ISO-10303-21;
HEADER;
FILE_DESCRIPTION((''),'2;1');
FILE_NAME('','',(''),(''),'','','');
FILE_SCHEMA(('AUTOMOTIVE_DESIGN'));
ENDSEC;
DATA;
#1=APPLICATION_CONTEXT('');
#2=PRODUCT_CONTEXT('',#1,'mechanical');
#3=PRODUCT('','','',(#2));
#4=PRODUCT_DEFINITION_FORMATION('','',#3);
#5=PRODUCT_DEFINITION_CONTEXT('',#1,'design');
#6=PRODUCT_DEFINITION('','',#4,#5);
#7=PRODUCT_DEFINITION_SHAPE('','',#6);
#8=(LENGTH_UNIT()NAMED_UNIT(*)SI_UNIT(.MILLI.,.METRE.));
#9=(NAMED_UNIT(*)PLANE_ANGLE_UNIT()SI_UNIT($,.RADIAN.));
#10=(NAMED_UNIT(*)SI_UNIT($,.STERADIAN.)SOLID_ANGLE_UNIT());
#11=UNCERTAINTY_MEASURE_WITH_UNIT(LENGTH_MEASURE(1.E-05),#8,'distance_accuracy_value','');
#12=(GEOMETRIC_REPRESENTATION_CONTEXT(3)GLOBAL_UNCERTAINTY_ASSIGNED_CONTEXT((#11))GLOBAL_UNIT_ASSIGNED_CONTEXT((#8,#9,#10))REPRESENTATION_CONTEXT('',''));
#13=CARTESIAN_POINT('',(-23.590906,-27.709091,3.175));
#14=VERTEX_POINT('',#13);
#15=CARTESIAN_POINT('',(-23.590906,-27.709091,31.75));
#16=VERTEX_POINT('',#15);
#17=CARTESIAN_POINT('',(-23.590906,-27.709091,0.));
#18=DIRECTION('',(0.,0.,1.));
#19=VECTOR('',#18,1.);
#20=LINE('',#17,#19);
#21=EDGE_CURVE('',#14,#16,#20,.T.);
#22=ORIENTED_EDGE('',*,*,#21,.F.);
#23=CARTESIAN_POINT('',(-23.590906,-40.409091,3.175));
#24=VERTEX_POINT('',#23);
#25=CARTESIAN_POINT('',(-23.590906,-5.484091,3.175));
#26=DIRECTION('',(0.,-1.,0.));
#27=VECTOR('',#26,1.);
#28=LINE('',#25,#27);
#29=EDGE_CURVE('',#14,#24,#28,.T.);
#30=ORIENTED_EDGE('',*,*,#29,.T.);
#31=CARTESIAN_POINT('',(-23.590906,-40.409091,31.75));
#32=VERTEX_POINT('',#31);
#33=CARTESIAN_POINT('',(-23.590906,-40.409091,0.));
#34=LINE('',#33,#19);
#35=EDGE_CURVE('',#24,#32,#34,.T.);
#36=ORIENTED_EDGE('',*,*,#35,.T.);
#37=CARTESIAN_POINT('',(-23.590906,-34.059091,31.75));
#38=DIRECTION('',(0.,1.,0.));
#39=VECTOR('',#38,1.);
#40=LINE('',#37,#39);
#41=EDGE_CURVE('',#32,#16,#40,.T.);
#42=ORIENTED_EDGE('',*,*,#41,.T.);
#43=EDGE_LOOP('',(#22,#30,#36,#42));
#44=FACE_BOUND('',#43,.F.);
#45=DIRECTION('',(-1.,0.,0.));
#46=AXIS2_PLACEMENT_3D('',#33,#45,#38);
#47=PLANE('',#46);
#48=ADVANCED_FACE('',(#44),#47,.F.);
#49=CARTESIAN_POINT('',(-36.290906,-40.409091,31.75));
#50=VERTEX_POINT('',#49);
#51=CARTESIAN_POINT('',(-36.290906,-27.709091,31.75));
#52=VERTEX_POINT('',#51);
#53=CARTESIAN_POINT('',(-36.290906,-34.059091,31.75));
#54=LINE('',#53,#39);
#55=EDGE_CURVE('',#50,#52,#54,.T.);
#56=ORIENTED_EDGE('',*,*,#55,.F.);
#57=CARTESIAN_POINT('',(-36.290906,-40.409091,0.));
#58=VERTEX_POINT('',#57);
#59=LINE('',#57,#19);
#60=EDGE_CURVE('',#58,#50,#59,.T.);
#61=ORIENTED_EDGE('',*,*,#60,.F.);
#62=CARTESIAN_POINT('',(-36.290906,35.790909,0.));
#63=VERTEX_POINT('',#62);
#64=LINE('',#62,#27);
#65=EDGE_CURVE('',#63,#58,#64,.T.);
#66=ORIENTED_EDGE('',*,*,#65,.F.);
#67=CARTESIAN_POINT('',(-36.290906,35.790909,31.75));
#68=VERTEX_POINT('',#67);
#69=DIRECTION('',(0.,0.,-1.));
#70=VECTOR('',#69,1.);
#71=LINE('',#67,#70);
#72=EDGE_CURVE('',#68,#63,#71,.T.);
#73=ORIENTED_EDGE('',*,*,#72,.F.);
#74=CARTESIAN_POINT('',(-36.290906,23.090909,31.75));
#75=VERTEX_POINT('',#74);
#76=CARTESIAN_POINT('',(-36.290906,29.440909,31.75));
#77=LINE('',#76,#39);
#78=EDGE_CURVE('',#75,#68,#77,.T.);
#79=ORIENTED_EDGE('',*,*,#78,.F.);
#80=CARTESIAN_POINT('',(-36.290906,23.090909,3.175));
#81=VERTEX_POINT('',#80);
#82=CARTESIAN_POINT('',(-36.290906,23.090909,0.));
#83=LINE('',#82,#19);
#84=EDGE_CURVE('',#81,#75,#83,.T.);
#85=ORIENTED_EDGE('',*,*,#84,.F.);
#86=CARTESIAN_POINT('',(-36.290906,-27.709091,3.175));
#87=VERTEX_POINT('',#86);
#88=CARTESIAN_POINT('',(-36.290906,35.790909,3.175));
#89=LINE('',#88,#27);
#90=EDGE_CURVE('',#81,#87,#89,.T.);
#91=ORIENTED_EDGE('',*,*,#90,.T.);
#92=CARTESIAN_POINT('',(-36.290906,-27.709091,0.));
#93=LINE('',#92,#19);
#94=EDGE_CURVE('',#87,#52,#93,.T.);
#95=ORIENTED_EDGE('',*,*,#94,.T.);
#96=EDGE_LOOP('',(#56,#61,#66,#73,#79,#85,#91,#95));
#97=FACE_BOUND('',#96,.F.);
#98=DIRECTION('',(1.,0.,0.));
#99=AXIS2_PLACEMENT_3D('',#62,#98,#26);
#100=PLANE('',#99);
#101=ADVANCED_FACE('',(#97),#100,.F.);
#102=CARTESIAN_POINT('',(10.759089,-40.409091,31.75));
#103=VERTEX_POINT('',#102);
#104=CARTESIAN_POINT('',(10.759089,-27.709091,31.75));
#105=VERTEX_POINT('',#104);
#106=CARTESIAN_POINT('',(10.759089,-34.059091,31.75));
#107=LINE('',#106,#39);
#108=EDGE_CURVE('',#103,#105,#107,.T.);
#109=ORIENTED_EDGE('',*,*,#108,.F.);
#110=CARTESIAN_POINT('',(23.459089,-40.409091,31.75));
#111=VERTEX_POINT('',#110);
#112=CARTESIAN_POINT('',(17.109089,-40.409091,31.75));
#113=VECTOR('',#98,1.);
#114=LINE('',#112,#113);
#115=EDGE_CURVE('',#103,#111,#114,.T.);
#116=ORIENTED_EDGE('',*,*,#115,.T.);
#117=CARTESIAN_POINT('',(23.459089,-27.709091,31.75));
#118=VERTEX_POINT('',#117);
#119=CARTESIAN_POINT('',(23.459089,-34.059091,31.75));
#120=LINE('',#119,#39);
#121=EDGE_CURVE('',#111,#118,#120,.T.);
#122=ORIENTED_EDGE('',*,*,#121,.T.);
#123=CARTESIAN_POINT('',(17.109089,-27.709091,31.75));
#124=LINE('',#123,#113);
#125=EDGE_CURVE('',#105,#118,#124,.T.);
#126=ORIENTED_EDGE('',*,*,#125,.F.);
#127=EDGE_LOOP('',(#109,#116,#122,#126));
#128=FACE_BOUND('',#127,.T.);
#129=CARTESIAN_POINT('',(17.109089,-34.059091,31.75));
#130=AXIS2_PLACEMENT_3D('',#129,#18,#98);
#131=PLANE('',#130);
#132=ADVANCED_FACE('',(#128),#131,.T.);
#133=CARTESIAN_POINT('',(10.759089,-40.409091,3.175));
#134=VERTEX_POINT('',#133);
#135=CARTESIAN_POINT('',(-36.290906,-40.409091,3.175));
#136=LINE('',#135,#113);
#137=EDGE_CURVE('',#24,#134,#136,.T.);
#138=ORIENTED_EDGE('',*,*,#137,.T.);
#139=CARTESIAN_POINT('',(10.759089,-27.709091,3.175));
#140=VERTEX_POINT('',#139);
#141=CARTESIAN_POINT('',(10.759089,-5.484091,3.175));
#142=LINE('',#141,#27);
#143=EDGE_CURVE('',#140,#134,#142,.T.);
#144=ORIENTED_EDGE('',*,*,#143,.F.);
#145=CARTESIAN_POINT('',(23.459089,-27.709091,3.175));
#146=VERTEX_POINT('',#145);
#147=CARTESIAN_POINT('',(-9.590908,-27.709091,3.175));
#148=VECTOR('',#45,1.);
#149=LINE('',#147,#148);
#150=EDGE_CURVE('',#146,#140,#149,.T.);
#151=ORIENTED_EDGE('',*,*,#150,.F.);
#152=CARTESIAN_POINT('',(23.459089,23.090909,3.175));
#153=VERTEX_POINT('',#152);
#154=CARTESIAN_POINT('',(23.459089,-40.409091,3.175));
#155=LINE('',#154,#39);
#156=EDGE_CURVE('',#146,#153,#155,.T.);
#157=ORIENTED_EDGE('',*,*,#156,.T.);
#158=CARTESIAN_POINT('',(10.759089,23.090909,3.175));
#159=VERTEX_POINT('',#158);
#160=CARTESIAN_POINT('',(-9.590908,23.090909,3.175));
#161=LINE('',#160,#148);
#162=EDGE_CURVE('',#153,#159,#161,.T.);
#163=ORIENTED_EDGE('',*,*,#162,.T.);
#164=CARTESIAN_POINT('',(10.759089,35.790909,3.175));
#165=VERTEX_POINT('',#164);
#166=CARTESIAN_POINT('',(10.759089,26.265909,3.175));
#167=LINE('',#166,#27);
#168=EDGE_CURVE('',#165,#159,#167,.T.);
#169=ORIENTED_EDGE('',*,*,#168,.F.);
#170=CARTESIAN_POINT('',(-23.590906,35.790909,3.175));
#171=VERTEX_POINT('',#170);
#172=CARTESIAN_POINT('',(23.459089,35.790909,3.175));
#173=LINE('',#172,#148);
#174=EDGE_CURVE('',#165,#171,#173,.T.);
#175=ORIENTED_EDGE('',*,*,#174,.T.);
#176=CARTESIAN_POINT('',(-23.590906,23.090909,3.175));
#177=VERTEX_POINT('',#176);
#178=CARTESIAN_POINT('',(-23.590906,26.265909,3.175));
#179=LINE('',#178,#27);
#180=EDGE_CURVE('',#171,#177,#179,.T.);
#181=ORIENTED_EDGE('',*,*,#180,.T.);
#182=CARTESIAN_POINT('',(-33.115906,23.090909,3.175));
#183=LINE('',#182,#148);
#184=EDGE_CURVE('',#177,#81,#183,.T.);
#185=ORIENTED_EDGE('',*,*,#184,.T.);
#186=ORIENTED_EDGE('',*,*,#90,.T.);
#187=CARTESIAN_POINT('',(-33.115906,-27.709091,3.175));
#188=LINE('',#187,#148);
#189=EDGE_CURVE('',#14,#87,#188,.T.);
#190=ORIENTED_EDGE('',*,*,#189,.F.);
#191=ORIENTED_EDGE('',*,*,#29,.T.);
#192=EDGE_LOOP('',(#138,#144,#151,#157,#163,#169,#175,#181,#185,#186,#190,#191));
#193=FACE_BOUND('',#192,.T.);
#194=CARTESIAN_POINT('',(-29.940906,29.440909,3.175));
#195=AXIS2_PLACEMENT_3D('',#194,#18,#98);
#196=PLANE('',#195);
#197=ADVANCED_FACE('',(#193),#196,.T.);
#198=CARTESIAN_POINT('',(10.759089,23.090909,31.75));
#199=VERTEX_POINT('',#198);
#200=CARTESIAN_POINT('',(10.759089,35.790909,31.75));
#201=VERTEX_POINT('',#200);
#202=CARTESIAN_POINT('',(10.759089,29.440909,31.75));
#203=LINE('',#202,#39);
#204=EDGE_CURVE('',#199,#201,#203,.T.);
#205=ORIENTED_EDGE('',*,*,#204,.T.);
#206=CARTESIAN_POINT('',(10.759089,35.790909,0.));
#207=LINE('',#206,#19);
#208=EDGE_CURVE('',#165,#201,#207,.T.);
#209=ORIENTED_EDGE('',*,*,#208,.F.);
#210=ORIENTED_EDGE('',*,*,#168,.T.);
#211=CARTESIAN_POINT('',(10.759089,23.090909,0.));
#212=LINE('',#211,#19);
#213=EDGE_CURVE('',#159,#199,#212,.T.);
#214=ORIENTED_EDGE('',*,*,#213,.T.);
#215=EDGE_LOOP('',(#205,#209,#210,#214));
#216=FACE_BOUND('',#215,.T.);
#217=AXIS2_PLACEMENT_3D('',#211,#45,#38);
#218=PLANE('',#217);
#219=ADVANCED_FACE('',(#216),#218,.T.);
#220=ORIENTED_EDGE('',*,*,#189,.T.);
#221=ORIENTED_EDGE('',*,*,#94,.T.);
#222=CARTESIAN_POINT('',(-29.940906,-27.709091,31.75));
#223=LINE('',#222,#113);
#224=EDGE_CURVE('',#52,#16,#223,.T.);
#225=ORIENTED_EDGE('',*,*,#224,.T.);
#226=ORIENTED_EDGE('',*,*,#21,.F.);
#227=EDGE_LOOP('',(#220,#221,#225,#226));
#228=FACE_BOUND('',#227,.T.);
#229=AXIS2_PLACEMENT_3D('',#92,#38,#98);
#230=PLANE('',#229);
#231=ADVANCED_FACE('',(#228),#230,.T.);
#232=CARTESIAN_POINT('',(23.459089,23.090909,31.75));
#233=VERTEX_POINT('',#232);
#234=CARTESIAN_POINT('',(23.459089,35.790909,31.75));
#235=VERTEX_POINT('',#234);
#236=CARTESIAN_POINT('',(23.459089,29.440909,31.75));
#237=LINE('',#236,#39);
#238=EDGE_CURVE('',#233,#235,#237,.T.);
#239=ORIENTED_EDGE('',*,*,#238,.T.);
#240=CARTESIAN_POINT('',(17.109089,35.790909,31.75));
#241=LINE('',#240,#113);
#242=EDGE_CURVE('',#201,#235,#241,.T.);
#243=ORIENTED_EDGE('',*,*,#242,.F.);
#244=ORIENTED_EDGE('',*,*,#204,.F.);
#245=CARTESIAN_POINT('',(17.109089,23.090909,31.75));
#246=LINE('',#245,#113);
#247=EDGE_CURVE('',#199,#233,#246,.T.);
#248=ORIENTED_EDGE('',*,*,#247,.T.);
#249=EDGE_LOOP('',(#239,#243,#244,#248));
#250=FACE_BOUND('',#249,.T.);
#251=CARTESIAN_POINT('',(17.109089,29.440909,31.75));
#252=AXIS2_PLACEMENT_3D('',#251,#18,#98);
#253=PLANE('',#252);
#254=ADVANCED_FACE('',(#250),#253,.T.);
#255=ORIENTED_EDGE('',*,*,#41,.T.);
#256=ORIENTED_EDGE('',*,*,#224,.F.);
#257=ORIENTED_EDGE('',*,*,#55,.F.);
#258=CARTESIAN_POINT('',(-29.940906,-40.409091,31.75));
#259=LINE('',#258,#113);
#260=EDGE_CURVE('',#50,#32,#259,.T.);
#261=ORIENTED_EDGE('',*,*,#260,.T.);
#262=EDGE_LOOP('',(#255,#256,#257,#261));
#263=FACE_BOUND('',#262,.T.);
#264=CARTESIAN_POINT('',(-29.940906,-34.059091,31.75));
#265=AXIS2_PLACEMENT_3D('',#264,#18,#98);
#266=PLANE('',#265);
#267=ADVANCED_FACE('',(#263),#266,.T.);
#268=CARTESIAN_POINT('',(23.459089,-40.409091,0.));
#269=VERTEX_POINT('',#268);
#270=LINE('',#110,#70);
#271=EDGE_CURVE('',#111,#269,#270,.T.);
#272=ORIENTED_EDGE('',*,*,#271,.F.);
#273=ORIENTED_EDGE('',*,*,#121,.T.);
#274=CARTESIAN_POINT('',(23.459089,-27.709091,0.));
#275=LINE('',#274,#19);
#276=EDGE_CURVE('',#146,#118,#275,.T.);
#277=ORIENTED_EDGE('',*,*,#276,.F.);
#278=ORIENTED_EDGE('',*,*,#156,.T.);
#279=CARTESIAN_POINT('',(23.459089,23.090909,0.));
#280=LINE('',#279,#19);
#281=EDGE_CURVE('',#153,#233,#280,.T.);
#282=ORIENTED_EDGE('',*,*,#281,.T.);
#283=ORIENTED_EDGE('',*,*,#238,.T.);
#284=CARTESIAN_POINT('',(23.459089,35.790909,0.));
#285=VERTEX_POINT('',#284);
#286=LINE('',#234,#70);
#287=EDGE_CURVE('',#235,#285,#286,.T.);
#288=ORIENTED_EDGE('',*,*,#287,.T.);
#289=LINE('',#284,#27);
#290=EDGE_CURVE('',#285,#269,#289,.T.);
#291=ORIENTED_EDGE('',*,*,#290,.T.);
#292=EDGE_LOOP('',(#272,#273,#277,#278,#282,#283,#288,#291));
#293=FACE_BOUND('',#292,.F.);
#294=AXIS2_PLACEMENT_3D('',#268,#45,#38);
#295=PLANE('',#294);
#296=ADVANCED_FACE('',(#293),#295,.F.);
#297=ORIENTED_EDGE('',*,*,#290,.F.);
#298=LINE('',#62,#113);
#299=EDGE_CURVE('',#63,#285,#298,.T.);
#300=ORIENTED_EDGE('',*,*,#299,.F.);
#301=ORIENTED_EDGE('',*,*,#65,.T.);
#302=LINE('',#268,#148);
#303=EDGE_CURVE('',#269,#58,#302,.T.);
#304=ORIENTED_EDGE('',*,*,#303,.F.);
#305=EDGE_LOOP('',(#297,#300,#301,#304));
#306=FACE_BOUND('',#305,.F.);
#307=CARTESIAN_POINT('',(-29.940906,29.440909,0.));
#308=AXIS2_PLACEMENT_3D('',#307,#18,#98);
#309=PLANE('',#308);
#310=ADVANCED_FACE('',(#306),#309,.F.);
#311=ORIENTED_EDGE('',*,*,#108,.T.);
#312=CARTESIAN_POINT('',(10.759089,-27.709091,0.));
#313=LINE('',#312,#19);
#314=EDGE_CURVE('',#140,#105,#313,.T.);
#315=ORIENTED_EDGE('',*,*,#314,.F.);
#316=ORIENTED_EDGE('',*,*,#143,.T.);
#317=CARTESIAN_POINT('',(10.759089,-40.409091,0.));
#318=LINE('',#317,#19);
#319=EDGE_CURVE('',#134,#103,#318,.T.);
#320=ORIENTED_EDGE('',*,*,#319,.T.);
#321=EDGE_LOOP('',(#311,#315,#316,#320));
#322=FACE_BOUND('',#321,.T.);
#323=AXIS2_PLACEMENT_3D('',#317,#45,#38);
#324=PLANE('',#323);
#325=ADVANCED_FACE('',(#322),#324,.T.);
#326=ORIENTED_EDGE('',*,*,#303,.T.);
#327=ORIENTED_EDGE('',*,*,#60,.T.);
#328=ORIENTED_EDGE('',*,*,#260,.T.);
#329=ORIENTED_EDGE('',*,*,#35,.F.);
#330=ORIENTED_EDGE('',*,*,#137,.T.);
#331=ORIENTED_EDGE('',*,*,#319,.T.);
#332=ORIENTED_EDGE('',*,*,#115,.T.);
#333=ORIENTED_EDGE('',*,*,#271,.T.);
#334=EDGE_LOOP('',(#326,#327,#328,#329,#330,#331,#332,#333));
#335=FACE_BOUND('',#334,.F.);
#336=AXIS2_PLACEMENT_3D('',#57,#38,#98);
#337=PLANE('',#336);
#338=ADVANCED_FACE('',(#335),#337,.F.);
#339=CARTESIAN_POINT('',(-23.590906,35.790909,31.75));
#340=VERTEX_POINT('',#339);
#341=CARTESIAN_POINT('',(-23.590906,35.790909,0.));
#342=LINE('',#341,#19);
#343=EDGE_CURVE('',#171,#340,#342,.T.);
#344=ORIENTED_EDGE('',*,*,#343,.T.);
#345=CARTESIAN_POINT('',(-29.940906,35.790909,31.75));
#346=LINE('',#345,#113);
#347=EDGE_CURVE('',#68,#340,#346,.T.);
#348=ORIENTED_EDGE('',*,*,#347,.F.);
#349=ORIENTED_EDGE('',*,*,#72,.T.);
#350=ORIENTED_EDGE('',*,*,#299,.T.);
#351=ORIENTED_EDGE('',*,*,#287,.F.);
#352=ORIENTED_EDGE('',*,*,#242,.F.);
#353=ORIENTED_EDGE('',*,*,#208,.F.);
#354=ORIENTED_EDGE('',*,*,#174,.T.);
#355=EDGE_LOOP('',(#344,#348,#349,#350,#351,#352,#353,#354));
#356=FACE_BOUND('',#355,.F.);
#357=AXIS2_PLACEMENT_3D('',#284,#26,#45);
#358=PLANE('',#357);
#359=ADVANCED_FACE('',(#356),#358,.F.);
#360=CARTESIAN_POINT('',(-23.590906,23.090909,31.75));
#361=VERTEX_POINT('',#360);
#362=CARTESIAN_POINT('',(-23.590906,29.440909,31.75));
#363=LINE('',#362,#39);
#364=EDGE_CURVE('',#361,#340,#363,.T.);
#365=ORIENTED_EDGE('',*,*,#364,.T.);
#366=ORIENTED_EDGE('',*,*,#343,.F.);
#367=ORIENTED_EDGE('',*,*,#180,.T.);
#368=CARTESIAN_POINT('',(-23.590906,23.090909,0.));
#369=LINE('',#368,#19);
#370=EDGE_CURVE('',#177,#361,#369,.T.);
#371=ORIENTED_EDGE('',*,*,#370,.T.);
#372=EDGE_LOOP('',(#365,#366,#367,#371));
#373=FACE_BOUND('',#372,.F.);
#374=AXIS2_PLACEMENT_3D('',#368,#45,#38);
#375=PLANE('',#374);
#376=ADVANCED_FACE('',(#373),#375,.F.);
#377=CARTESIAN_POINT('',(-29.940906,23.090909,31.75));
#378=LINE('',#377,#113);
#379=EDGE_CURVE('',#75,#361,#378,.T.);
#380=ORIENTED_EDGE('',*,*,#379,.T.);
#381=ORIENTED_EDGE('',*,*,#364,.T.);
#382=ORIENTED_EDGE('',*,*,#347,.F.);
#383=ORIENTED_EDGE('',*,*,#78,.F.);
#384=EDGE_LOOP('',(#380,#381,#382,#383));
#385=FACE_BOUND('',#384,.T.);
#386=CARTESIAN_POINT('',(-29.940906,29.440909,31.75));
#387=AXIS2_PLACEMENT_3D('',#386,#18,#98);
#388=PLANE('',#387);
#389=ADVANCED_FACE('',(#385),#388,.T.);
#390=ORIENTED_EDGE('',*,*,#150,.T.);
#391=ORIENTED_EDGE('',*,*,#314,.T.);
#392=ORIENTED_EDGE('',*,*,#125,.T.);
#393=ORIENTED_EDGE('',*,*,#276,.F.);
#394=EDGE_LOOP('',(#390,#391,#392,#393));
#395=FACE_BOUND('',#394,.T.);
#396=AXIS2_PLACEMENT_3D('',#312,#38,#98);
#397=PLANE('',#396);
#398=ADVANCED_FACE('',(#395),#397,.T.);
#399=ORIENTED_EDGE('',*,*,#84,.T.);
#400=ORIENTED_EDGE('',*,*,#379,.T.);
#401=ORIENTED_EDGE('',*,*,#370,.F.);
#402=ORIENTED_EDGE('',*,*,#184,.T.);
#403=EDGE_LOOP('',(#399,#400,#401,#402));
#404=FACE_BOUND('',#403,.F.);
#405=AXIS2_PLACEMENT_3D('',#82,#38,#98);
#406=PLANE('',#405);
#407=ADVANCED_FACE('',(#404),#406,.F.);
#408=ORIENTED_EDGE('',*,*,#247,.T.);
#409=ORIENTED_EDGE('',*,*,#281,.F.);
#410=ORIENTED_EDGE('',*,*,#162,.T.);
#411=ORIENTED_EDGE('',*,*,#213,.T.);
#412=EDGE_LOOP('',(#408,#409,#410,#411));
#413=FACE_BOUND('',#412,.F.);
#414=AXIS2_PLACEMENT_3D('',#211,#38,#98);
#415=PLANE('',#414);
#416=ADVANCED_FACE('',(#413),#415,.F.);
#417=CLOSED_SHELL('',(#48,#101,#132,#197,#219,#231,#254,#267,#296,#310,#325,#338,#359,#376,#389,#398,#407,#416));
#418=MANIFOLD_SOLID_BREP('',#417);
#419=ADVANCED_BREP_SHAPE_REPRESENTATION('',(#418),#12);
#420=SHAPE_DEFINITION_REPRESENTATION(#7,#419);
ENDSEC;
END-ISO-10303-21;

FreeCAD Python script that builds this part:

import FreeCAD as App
import Part
import Sketcher
from FreeCAD import Vector
Q = App.Units.Quantity


def add_polygon(sketch, points):
    """Adds a closed chain of lines whose ends are joined by coincident constraints."""
    first, n = sketch.GeometryCount, len(points)
    for a, b in zip(points, points[1:] + points[:1]):
        sketch.addGeometry(Part.LineSegment(App.Vector(*a, 0), App.Vector(*b, 0)), False)
    for i in range(n):
        sketch.addConstraint(Sketcher.Constraint("Coincident", first + i, 2, first + (i + 1) % n, 1))

doc = App.newDocument("Part")
body = doc.addObject("PartDesign::Body", "Body")

sketch1 = body.newObject("Sketcher::SketchObject", "Sketch")
sketch1.AttachmentSupport = (doc.getObject("XY_Plane"), [""])
sketch1.MapMode = "FlatFace"
add_polygon(sketch1, [(-36.290906, 35.790909), (-36.290906, -40.409091), (23.459089, -40.409091), (23.459089, 35.790909)])
sketch1.addConstraint([
    Sketcher.Constraint("Vertical", 0),
    Sketcher.Constraint("Horizontal", 1),
    Sketcher.Constraint("Vertical", 2),
    Sketcher.Constraint("Horizontal", 3),
    Sketcher.Constraint("DistanceY", 0, 2, 0, 1, Q("3 in")),
    Sketcher.Constraint("DistanceX", 1, 1, 1, 2, 59.749995),
    Sketcher.Constraint("DistanceY", 0, 2, -1, 1, 40.409091),
    Sketcher.Constraint("DistanceX", -1, 1, 1, 2, 23.459089),
])
pad1 = body.newObject("PartDesign::Pad", "Pad")
pad1.Profile = sketch1
pad1.Length = Q("0.125 in")

sketch2 = body.newObject("Sketcher::SketchObject", "Sketch001")
sketch2.AttachmentSupport = (doc.getObject("XY_Plane"), [""])
sketch2.MapMode = "FlatFace"
add_polygon(sketch2, [(-36.290906, 35.790909), (-36.290906, 23.090909), (-23.590906, 23.090909), (-23.590906, 35.790909)])
add_polygon(sketch2, [(10.759089, 35.790909), (10.759089, 23.090909), (23.459089, 23.090909), (23.459089, 35.790909)])
add_polygon(sketch2, [(-36.290906, -27.709091), (-36.290906, -40.409091), (-23.590906, -40.409091), (-23.590906, -27.709091)])
add_polygon(sketch2, [(10.759089, -27.709091), (10.759089, -40.409091), (23.459089, -40.409091), (23.459089, -27.709091)])
sketch2.addConstraint([
    Sketcher.Constraint("Vertical", 0),
    Sketcher.Constraint("Horizontal", 1),
    Sketcher.Constraint("Vertical", 2),
    Sketcher.Constraint("Horizontal", 3),
    Sketcher.Constraint("Vertical", 4),
    Sketcher.Constraint("Horizontal", 5),
    Sketcher.Constraint("Vertical", 6),
    Sketcher.Constraint("Horizontal", 7),
    Sketcher.Constraint("Vertical", 8),
    Sketcher.Constraint("Horizontal", 9),
    Sketcher.Constraint("Vertical", 10),
    Sketcher.Constraint("Horizontal", 11),
    Sketcher.Constraint("Vertical", 12),
    Sketcher.Constraint("Horizontal", 13),
    Sketcher.Constraint("Vertical", 14),
    Sketcher.Constraint("Horizontal", 15),
    Sketcher.Constraint("Horizontal", 1, 2, 4, 2),
    Sketcher.Constraint("Horizontal", 3, 2, 6, 2),
    Sketcher.Constraint("Horizontal", 9, 2, 12, 2),
    Sketcher.Constraint("Horizontal", 11, 2, 14, 2),
    Sketcher.Constraint("Vertical", 3, 2, 8, 2),
    Sketcher.Constraint("Vertical", 2, 2, 9, 2),
    Sketcher.Constraint("Vertical", 7, 2, 12, 2),
    Sketcher.Constraint("Vertical", 6, 2, 13, 2),
    Sketcher.Constraint("Equal", 3, 5),
    Sketcher.Constraint("Equal", 15, 0),
    Sketcher.Constraint("Equal", 6, 8),
    Sketcher.Constraint("DistanceX", 1, 1, 1, 2, Q("0.5 in")),
    Sketcher.Constraint("DistanceY", 8, 2, 3, 2, Q("3 in")),
    Sketcher.Constraint("DistanceY", -1, 1, 0, 2, 23.090909),
    Sketcher.Constraint("DistanceX", -1, 1, 4, 2, 10.759089),
    Sketcher.Constraint("DistanceX", 0, 2, -1, 1, 36.290906),
])
pad2 = body.newObject("PartDesign::Pad", "Pad001")
pad2.Profile = sketch2
pad2.Length = Q("1.25 in")

doc.recompute()
